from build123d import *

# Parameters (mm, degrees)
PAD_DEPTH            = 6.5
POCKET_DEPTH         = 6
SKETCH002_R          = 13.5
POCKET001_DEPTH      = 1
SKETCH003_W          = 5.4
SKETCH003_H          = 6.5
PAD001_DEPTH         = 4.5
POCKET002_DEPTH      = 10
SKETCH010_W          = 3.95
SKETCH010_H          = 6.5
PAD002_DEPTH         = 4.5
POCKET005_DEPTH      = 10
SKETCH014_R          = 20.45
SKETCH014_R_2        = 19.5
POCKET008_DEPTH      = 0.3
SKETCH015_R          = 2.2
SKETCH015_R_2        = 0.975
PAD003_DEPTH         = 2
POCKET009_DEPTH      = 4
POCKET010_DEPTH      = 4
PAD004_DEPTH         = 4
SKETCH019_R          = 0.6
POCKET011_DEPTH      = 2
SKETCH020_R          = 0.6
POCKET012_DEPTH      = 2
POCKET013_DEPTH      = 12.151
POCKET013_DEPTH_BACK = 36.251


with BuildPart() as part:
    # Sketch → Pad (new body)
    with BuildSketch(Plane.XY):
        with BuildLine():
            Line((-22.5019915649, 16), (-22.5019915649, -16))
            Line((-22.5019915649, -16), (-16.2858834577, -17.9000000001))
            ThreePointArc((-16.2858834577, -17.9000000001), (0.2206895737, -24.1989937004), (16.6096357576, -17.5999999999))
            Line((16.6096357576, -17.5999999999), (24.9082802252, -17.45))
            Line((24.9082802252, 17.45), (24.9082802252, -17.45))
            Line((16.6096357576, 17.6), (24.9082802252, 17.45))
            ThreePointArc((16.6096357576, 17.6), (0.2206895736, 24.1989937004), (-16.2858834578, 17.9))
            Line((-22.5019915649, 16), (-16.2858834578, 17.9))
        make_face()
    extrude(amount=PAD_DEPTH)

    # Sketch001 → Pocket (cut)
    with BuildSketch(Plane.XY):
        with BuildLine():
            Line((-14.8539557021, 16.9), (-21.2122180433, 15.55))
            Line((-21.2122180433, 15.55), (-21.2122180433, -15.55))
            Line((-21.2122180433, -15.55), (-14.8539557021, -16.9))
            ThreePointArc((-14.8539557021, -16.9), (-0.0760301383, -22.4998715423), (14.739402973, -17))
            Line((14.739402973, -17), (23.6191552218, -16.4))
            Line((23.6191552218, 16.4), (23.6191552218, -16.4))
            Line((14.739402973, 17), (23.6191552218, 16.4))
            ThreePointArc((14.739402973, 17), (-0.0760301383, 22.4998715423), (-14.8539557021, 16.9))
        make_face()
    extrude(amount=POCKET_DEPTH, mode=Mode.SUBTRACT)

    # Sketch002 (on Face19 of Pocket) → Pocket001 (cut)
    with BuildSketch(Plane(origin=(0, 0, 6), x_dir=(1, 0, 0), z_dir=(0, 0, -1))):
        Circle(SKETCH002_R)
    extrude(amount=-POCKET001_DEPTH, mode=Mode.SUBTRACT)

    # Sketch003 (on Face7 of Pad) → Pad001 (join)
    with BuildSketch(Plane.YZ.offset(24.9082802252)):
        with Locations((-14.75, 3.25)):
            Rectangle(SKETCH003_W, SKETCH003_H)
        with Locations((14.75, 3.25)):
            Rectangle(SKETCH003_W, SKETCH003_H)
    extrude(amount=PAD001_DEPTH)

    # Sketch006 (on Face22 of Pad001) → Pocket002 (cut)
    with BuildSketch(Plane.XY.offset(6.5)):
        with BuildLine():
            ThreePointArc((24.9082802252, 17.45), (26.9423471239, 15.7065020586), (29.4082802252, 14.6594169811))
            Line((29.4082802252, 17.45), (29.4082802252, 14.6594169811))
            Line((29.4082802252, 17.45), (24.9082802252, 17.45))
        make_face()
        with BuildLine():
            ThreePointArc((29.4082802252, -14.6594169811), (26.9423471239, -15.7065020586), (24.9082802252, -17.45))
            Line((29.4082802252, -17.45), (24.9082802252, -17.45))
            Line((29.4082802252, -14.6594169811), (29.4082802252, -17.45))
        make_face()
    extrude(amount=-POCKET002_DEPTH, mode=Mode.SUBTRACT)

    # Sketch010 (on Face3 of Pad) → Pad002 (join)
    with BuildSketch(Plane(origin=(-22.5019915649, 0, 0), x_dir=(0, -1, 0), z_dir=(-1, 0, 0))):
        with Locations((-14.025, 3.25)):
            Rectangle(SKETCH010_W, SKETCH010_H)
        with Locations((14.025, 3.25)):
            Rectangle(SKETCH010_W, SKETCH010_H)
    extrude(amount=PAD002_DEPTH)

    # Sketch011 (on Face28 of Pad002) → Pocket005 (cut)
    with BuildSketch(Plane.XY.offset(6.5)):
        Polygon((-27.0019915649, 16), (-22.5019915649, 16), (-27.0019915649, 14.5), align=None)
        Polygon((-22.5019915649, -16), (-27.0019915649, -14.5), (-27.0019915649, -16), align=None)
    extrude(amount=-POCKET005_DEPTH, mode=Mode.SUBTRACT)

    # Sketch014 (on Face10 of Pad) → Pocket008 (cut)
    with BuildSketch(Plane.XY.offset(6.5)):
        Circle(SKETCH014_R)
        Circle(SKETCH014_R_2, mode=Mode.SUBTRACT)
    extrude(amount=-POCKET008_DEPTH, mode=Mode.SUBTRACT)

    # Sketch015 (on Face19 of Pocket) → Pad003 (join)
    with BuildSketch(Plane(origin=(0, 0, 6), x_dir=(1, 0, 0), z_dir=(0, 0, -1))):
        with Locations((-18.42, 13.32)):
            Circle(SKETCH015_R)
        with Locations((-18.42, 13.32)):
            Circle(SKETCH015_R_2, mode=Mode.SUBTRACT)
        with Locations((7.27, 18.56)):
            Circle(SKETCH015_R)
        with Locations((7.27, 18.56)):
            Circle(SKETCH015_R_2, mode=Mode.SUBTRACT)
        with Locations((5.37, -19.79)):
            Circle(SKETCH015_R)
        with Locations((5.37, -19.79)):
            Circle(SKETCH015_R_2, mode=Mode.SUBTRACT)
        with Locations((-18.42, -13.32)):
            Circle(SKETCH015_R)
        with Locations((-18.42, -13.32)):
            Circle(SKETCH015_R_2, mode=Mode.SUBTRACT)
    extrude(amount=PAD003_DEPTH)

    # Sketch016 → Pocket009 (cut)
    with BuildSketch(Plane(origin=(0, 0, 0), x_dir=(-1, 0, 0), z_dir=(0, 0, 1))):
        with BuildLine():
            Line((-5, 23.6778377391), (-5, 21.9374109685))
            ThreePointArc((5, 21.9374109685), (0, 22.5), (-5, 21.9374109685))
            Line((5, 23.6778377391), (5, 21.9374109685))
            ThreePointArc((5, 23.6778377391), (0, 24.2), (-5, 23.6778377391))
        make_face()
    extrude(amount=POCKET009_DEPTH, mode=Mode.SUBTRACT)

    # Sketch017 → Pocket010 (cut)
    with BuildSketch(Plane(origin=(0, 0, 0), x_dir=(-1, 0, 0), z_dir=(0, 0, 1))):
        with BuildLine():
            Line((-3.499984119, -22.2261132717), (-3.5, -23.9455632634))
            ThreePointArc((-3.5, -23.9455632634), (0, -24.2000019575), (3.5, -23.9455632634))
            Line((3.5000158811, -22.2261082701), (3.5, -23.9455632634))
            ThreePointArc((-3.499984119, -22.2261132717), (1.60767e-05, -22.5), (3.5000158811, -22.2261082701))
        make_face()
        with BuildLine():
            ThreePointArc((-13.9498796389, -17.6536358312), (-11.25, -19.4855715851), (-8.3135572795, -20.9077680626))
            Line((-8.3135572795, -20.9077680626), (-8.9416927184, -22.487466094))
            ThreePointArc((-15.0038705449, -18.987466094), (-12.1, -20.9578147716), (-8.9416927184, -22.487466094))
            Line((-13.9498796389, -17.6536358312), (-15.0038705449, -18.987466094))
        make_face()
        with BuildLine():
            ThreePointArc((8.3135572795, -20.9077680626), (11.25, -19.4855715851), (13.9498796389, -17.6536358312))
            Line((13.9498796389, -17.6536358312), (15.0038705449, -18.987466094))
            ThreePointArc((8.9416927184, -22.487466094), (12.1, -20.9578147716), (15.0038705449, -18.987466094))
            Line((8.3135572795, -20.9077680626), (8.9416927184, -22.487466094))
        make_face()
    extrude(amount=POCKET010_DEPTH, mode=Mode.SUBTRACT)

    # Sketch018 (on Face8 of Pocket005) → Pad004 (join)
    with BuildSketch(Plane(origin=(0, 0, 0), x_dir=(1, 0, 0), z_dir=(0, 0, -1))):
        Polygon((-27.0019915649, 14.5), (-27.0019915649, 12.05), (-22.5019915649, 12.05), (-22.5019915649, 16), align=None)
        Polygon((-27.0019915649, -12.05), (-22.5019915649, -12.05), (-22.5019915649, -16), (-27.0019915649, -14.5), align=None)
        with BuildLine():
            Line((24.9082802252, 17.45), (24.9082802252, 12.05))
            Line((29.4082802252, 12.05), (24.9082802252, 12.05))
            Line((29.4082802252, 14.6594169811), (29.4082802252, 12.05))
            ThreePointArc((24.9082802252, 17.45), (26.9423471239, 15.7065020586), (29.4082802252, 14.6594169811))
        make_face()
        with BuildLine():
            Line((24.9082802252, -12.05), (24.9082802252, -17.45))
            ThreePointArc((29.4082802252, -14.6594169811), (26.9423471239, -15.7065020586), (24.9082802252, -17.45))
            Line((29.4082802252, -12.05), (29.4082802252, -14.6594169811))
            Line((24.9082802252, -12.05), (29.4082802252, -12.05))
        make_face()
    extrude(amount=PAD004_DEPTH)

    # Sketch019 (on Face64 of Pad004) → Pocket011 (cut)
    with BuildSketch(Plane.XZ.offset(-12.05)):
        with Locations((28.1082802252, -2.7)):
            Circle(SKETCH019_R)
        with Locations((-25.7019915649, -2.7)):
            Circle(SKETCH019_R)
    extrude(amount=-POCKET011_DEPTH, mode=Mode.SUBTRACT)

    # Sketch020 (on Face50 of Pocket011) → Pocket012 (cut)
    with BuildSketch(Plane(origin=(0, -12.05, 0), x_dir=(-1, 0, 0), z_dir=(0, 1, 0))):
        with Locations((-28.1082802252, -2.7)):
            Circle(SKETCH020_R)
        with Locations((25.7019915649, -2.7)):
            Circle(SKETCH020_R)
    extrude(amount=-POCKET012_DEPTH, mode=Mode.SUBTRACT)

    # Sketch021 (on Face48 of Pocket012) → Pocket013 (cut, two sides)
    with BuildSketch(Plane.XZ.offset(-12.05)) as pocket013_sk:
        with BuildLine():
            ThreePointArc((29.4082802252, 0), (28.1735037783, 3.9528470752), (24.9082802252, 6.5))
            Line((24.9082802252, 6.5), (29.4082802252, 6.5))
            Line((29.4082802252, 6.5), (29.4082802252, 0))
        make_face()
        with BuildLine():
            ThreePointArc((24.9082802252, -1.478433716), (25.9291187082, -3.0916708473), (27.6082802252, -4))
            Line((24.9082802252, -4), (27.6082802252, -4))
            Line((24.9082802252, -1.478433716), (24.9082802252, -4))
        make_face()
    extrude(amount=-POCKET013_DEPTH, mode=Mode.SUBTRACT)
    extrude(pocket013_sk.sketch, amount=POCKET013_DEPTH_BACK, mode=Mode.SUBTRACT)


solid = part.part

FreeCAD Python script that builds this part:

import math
import FreeCAD as App
import Part
import Sketcher
from FreeCAD import Vector

doc = App.newDocument("Part")
body = doc.addObject("PartDesign::Body", "Body")

sketch1 = body.newObject("Sketcher::SketchObject", "Sketch")
sketch1.AttachmentSupport = (doc.getObject("XY_Plane"), [""])
sketch1.MapMode = "FlatFace"
sketch1.addGeometry(Part.LineSegment(Vector(-22.501992, 16, 0), Vector(-22.501992, -16, 0)), False)
sketch1.addGeometry(Part.LineSegment(Vector(-22.501992, -16, 0), Vector(-16.285883, -17.9, 0)), False)
sketch1.addGeometry(Part.ArcOfCircle(Part.Circle(Vector(0, 0, 0), Vector(0, 0, 1), 24.2), math.radians(-132.296737), math.radians(-46.658242)), False)
sketch1.addGeometry(Part.LineSegment(Vector(16.609636, -17.6, 0), Vector(24.90828, -17.45, 0)), False)
sketch1.addGeometry(Part.LineSegment(Vector(24.90828, -17.45, 0), Vector(24.90828, 17.45, 0)), False)
sketch1.addGeometry(Part.LineSegment(Vector(24.90828, 17.45, 0), Vector(16.609636, 17.6, 0)), False)
sketch1.addGeometry(Part.ArcOfCircle(Part.Circle(Vector(0, 0, 0), Vector(0, 0, 1), 24.2), math.radians(46.658242), math.radians(132.296737)), False)
sketch1.addGeometry(Part.LineSegment(Vector(-16.285883, 17.9, 0), Vector(-22.501992, 16, 0)), False)
sketch1.addConstraint(Sketcher.Constraint("Coincident", 0, 2, 1, 1))
sketch1.addConstraint(Sketcher.Constraint("Coincident", 1, 2, 2, 1))
sketch1.addConstraint(Sketcher.Constraint("Coincident", 2, 2, 3, 1))
sketch1.addConstraint(Sketcher.Constraint("Coincident", 3, 2, 4, 1))
sketch1.addConstraint(Sketcher.Constraint("Coincident", 4, 2, 5, 1))
sketch1.addConstraint(Sketcher.Constraint("Coincident", 5, 2, 6, 1))
sketch1.addConstraint(Sketcher.Constraint("Coincident", 6, 2, 7, 1))
sketch1.addConstraint(Sketcher.Constraint("Coincident", 7, 2, 0, 1))
sketch1.addConstraint(Sketcher.Constraint("Vertical", 0))
sketch1.addConstraint(Sketcher.Constraint("Vertical", 4))
sketch1.addConstraint(Sketcher.Constraint("Coincident", 2, 3, -1, 1))
sketch1.addConstraint(Sketcher.Constraint("Coincident", 6, 3, -1, 1))
sketch1.addConstraint(Sketcher.Constraint("Equal", 2, 6))
sketch1.addConstraint(Sketcher.Constraint("Vertical", 2, 2, 5, 2))
sketch1.addConstraint(Sketcher.Constraint("Vertical", 1, 2, 6, 2))
sketch1.addConstraint(Sketcher.Constraint("Equal", 3, 5))
sketch1.addConstraint(Sketcher.Constraint("Equal", 1, 7))
sketch1.addConstraint(Sketcher.Constraint("Radius", 2, 24.2))
sketch1.addConstraint(Sketcher.Constraint("DistanceY", 0, 2, 0, 1, 32.0))
sketch1.addConstraint(Sketcher.Constraint("DistanceY", 4, 1, 4, 2, 34.9))
sketch1.addConstraint(Sketcher.Constraint("Distance", 1, 6.5))
sketch1.addConstraint(Sketcher.Constraint("Distance", 3, 8.3))
sketch1.addConstraint(Sketcher.Constraint("DistanceY", 1, 2, -1, 1, 17.9))
sketch1.addConstraint(Sketcher.Constraint("DistanceY", 2, 2, -1, 1, 17.6))
pad1 = body.newObject("PartDesign::Pad", "Pad")
pad1.Profile = sketch1
pad1.Length = 6.5

sketch2 = body.newObject("Sketcher::SketchObject", "Sketch001")
sketch2.AttachmentSupport = (doc.getObject("XY_Plane"), [""])
sketch2.MapMode = "FlatFace"
sketch2.addGeometry(Part.LineSegment(Vector(-14.853956, 16.9, 0), Vector(-21.212218, 15.55, 0)), False)
sketch2.addGeometry(Part.LineSegment(Vector(-21.212218, 15.55, 0), Vector(-21.212218, -15.55, 0)), False)
sketch2.addGeometry(Part.LineSegment(Vector(-21.212218, -15.55, 0), Vector(-14.853956, -16.9, 0)), False)
sketch2.addGeometry(Part.ArcOfCircle(Part.Circle(Vector(0, 0, 0), Vector(0, 0, 1), 22.5), math.radians(-131.313282), math.radians(-49.073937)), False)
sketch2.addGeometry(Part.LineSegment(Vector(14.739403, -17, 0), Vector(23.619155, -16.4, 0)), False)
sketch2.addGeometry(Part.LineSegment(Vector(23.619155, -16.4, 0), Vector(23.619155, 16.4, 0)), False)
sketch2.addGeometry(Part.LineSegment(Vector(23.619155, 16.4, 0), Vector(14.739403, 17, 0)), False)
sketch2.addGeometry(Part.ArcOfCircle(Part.Circle(Vector(0, 0, 0), Vector(0, 0, 1), 22.5), math.radians(49.073937), math.radians(131.313282)), False)
sketch2.addConstraint(Sketcher.Constraint("Coincident", 0, 2, 1, 1))
sketch2.addConstraint(Sketcher.Constraint("Coincident", 1, 2, 2, 1))
sketch2.addConstraint(Sketcher.Constraint("Coincident", 2, 2, 3, 1))
sketch2.addConstraint(Sketcher.Constraint("Coincident", 3, 2, 4, 1))
sketch2.addConstraint(Sketcher.Constraint("Coincident", 4, 2, 5, 1))
sketch2.addConstraint(Sketcher.Constraint("Coincident", 5, 2, 6, 1))
sketch2.addConstraint(Sketcher.Constraint("Coincident", 6, 2, 7, 1))
sketch2.addConstraint(Sketcher.Constraint("Coincident", 7, 2, 0, 1))
sketch2.addConstraint(Sketcher.Constraint("Vertical", 1))
sketch2.addConstraint(Sketcher.Constraint("Vertical", 5))
sketch2.addConstraint(Sketcher.Constraint("Coincident", 3, 3, -1, 1))
sketch2.addConstraint(Sketcher.Constraint("Coincident", 7, 3, -1, 1))
sketch2.addConstraint(Sketcher.Constraint("Equal", 3, 7))
sketch2.addConstraint(Sketcher.Constraint("Vertical", 3, 2, 6, 2))
sketch2.addConstraint(Sketcher.Constraint("Vertical", 2, 2, 7, 2))
sketch2.addConstraint(Sketcher.Constraint("Equal", 0, 2))
sketch2.addConstraint(Sketcher.Constraint("Equal", 4, 6))
sketch2.addConstraint(Sketcher.Constraint("Radius", 3, 22.5))
sketch2.addConstraint(Sketcher.Constraint("DistanceY", 1, 2, 1, 1, 31.1))
sketch2.addConstraint(Sketcher.Constraint("DistanceY", 5, 1, 5, 2, 32.8))
sketch2.addConstraint(Sketcher.Constraint("DistanceY", 3, 2, -1, 1, 17.0))
sketch2.addConstraint(Sketcher.Constraint("Distance", 0, 6.5))
sketch2.addConstraint(Sketcher.Constraint("Distance", 4, 8.9))
sketch2.addConstraint(Sketcher.Constraint("DistanceY", 2, 2, -1, 1, 16.9))
pocket1 = body.newObject("PartDesign::Pocket", "Pocket")
pocket1.Profile = sketch2
pocket1.Length = 6
pocket1.Reversed = True

sketch3 = body.newObject("Sketcher::SketchObject", "Sketch002")
sketch3.AttachmentSupport = (doc.getObject("XY_Plane"), [""])
sketch3.MapMode = "FlatFace"
sketch3.AttachmentOffset = App.Placement(Vector(0, 0, 6), App.Rotation())
sketch3.addGeometry(Part.Circle(Vector(0, 0, 0), Vector(0, 0, 1), 13.5), False)
sketch3.addConstraint(Sketcher.Constraint("Coincident", 0, 3, -1, 1))
sketch3.addConstraint(Sketcher.Constraint("Diameter", 0, 27.0))
pocket2 = body.newObject("PartDesign::Pocket", "Pocket001")
pocket2.Profile = sketch3
pocket2.Length = 1
pocket2.Reversed = True

sketch4 = body.newObject("Sketcher::SketchObject", "Sketch003")
sketch4.AttachmentSupport = (doc.getObject("YZ_Plane"), [""])
sketch4.MapMode = "FlatFace"
sketch4.AttachmentOffset = App.Placement(Vector(0, 0, 24.90828), App.Rotation())
sketch4.addGeometry(Part.LineSegment(Vector(-17.45, 6.5, 0), Vector(-17.45, 0, 0)), False)
sketch4.addGeometry(Part.LineSegment(Vector(-17.45, 0, 0), Vector(-12.05, 0, 0)), False)
sketch4.addGeometry(Part.LineSegment(Vector(-12.05, 0, 0), Vector(-12.05, 6.5, 0)), False)
sketch4.addGeometry(Part.LineSegment(Vector(-12.05, 6.5, 0), Vector(-17.45, 6.5, 0)), False)
sketch4.addGeometry(Part.LineSegment(Vector(12.05, 6.5, 0), Vector(12.05, 0, 0)), False)
sketch4.addGeometry(Part.LineSegment(Vector(12.05, 0, 0), Vector(17.45, 0, 0)), False)
sketch4.addGeometry(Part.LineSegment(Vector(17.45, 0, 0), Vector(17.45, 6.5, 0)), False)
sketch4.addGeometry(Part.LineSegment(Vector(17.45, 6.5, 0), Vector(12.05, 6.5, 0)), False)
sketch4.addConstraint(Sketcher.Constraint("Coincident", 0, 2, 1, 1))
sketch4.addConstraint(Sketcher.Constraint("Coincident", 1, 2, 2, 1))
sketch4.addConstraint(Sketcher.Constraint("Coincident", 2, 2, 3, 1))
sketch4.addConstraint(Sketcher.Constraint("Coincident", 3, 2, 0, 1))
sketch4.addConstraint(Sketcher.Constraint("Coincident", 4, 2, 5, 1))
sketch4.addConstraint(Sketcher.Constraint("Coincident", 5, 2, 6, 1))
sketch4.addConstraint(Sketcher.Constraint("Coincident", 6, 2, 7, 1))
sketch4.addConstraint(Sketcher.Constraint("Coincident", 7, 2, 4, 1))
sketch4.addConstraint(Sketcher.Constraint("Vertical", 0))
sketch4.addConstraint(Sketcher.Constraint("Horizontal", 1))
sketch4.addConstraint(Sketcher.Constraint("Vertical", 2))
sketch4.addConstraint(Sketcher.Constraint("Horizontal", 3))
sketch4.addConstraint(Sketcher.Constraint("Vertical", 4))
sketch4.addConstraint(Sketcher.Constraint("Horizontal", 5))
sketch4.addConstraint(Sketcher.Constraint("Vertical", 6))
sketch4.addConstraint(Sketcher.Constraint("Horizontal", 7))
sketch4.addConstraint(Sketcher.Constraint("Symmetric", 1, 2, 4, 2, -1, 1))
sketch4.addConstraint(Sketcher.Constraint("Symmetric", 0, 2, 5, 2, -2))
sketch4.addConstraint(Sketcher.Constraint("Horizontal", 3, 2, 6, 2))
sketch4.addConstraint(Sketcher.Constraint("DistanceX", 1, 1, 1, 2, 5.4))
sketch4.addConstraint(Sketcher.Constraint("DistanceY", 0, 2, 0, 1, 6.5))
sketch4.addConstraint(Sketcher.Constraint("DistanceX", 1, 2, 4, 2, 24.1))
pad2 = body.newObject("PartDesign::Pad", "Pad001")
pad2.Profile = sketch4
pad2.Length = 4.5

sketch5 = body.newObject("Sketcher::SketchObject", "Sketch004")
sketch5.AttachmentSupport = (doc.getObject("XY_Plane"), [""])
sketch5.MapMode = "FlatFace"
sketch5.AttachmentOffset = App.Placement(Vector(0, 0, 6.5), App.Rotation())
sketch5.addGeometry(Part.ArcOfCircle(Part.Circle(Vector(31.55828, 23.15, 0), Vector(0, 0, 1), 8.758567), math.radians(-139.398705), math.radians(-104.209844)), False)
sketch5.addGeometry(Part.LineSegment(Vector(29.40828, 14.659417, 0), Vector(29.40828, 17.45, 0)), False)
sketch5.addGeometry(Part.LineSegment(Vector(29.40828, 17.45, 0), Vector(24.90828, 17.45, 0)), False)
sketch5.addGeometry(Part.ArcOfCircle(Part.Circle(Vector(31.55828, -23.15, 0), Vector(0, 0, 1), 8.758567), math.radians(104.209844), math.radians(139.398705)), False)
sketch5.addGeometry(Part.LineSegment(Vector(24.90828, -17.45, 0), Vector(29.40828, -17.45, 0)), False)
sketch5.addGeometry(Part.LineSegment(Vector(29.40828, -17.45, 0), Vector(29.40828, -14.659417, 0)), False)
sketch5.addConstraint(Sketcher.Constraint("Coincident", 0, 2, 1, 1))
sketch5.addConstraint(Sketcher.Constraint("Coincident", 1, 2, 2, 1))
sketch5.addConstraint(Sketcher.Constraint("Coincident", 2, 2, 0, 1))
sketch5.addConstraint(Sketcher.Constraint("Coincident", 3, 2, 4, 1))
sketch5.addConstraint(Sketcher.Constraint("Coincident", 4, 2, 5, 1))
sketch5.addConstraint(Sketcher.Constraint("Coincident", 5, 2, 3, 1))
sketch5.addConstraint(Sketcher.Constraint("Vertical", 1))
sketch5.addConstraint(Sketcher.Constraint("Horizontal", 2))
sketch5.addConstraint(Sketcher.Constraint("Horizontal", 4))
sketch5.addConstraint(Sketcher.Constraint("Vertical", 5))
sketch5.addConstraint(Sketcher.Constraint("Equal", 0, 3))
sketch5.addConstraint(Sketcher.Constraint("Symmetric", 0, 3, 3, 3, -1))
sketch5.addConstraint(Sketcher.Constraint("Symmetric", 1, 2, 4, 2, -1))
sketch5.addConstraint(Sketcher.Constraint("DistanceX", 2, 2, 2, 1, 4.5))
sketch5.addConstraint(Sketcher.Constraint("DistanceY", 3, 3, 0, 3, 46.3))
sketch5.addConstraint(Sketcher.Constraint("DistanceY", 1, 2, 0, 3, 5.7))
sketch5.addConstraint(Sketcher.Constraint("DistanceX", 0, 2, 0, 3, 2.15))
sketch5.addConstraint(Sketcher.Constraint("DistanceX", -1, 1, 0, 3, 31.55828))
pocket3 = body.newObject("PartDesign::Pocket", "Pocket002")
pocket3.Profile = sketch5
pocket3.Length = 10

sketch6 = body.newObject("Sketcher::SketchObject", "Sketch005")
sketch6.AttachmentSupport = (doc.getObject("YZ_Plane"), [""])
sketch6.MapMode = "FlatFace"
sketch6.AttachmentOffset = App.Placement(Vector(0, 0, -22.501992), App.Rotation())
sketch6.addGeometry(Part.LineSegment(Vector(16, 6.5, 0), Vector(16, 0, 0)), False)
sketch6.addGeometry(Part.LineSegment(Vector(16, 0, 0), Vector(12.05, 0, 0)), False)
sketch6.addGeometry(Part.LineSegment(Vector(12.05, 0, 0), Vector(12.05, 6.5, 0)), False)
sketch6.addGeometry(Part.LineSegment(Vector(12.05, 6.5, 0), Vector(16, 6.5, 0)), False)
sketch6.addGeometry(Part.LineSegment(Vector(-12.05, 6.5, 0), Vector(-12.05, 0, 0)), False)
sketch6.addGeometry(Part.LineSegment(Vector(-12.05, 0, 0), Vector(-16, 0, 0)), False)
sketch6.addGeometry(Part.LineSegment(Vector(-16, 0, 0), Vector(-16, 6.5, 0)), False)
sketch6.addGeometry(Part.LineSegment(Vector(-16, 6.5, 0), Vector(-12.05, 6.5, 0)), False)
sketch6.addConstraint(Sketcher.Constraint("Coincident", 0, 2, 1, 1))
sketch6.addConstraint(Sketcher.Constraint("Coincident", 1, 2, 2, 1))
sketch6.addConstraint(Sketcher.Constraint("Coincident", 2, 2, 3, 1))
sketch6.addConstraint(Sketcher.Constraint("Coincident", 3, 2, 0, 1))
sketch6.addConstraint(Sketcher.Constraint("Coincident", 4, 2, 5, 1))
sketch6.addConstraint(Sketcher.Constraint("Coincident", 5, 2, 6, 1))
sketch6.addConstraint(Sketcher.Constraint("Coincident", 6, 2, 7, 1))
sketch6.addConstraint(Sketcher.Constraint("Coincident", 7, 2, 4, 1))
sketch6.addConstraint(Sketcher.Constraint("Vertical", 0))
sketch6.addConstraint(Sketcher.Constraint("Horizontal", 1))
sketch6.addConstraint(Sketcher.Constraint("Vertical", 2))
sketch6.addConstraint(Sketcher.Constraint("Horizontal", 3))
sketch6.addConstraint(Sketcher.Constraint("Vertical", 4))
sketch6.addConstraint(Sketcher.Constraint("Horizontal", 5))
sketch6.addConstraint(Sketcher.Constraint("Vertical", 6))
sketch6.addConstraint(Sketcher.Constraint("Horizontal", 7))
sketch6.addConstraint(Sketcher.Constraint("Symmetric", 1, 2, 4, 2, -1, 1))
sketch6.addConstraint(Sketcher.Constraint("Symmetric", 0, 2, 5, 2, -2))
sketch6.addConstraint(Sketcher.Constraint("Horizontal", 3, 2, 6, 2))
sketch6.addConstraint(Sketcher.Constraint("DistanceY", 0, 2, 0, 1, 6.5))
sketch6.addConstraint(Sketcher.Constraint("DistanceX", -1, 1, 0, 2, 16.0))
sketch6.addConstraint(Sketcher.Constraint("DistanceX", 1, 2, 1, 1, 3.95))
pad3 = body.newObject("PartDesign::Pad", "Pad002")
pad3.Profile = sketch6
pad3.Length = 4.5
pad3.Reversed = True

sketch7 = body.newObject("Sketcher::SketchObject", "Sketch006")
sketch7.AttachmentSupport = (doc.getObject("XY_Plane"), [""])
sketch7.MapMode = "FlatFace"
sketch7.AttachmentOffset = App.Placement(Vector(0, 0, 6.5), App.Rotation())
sketch7.addGeometry(Part.LineSegment(Vector(-22.501992, 16, 0), Vector(-27.001992, 16, 0)), False)
sketch7.addGeometry(Part.LineSegment(Vector(-27.001992, 16, 0), Vector(-27.001992, 14.5, 0)), False)
sketch7.addGeometry(Part.LineSegment(Vector(-27.001992, 14.5, 0), Vector(-22.501992, 16, 0)), False)
sketch7.addGeometry(Part.LineSegment(Vector(-22.501992, -16, 0), Vector(-27.001992, -14.5, 0)), False)
sketch7.addGeometry(Part.LineSegment(Vector(-27.001992, -14.5, 0), Vector(-27.001992, -16, 0)), False)
sketch7.addGeometry(Part.LineSegment(Vector(-27.001992, -16, 0), Vector(-22.501992, -16, 0)), False)
sketch7.addConstraint(Sketcher.Constraint("Coincident", 0, 2, 1, 1))
sketch7.addConstraint(Sketcher.Constraint("Coincident", 1, 2, 2, 1))
sketch7.addConstraint(Sketcher.Constraint("Coincident", 2, 2, 0, 1))
sketch7.addConstraint(Sketcher.Constraint("Coincident", 3, 2, 4, 1))
sketch7.addConstraint(Sketcher.Constraint("Coincident", 4, 2, 5, 1))
sketch7.addConstraint(Sketcher.Constraint("Coincident", 5, 2, 3, 1))
sketch7.addConstraint(Sketcher.Constraint("Horizontal", 0))
sketch7.addConstraint(Sketcher.Constraint("Vertical", 1))
sketch7.addConstraint(Sketcher.Constraint("Vertical", 4))
sketch7.addConstraint(Sketcher.Constraint("Horizontal", 5))
sketch7.addConstraint(Sketcher.Constraint("Symmetric", 1, 2, 3, 2, -1))
sketch7.addConstraint(Sketcher.Constraint("Symmetric", 2, 2, 5, 2, -1))
sketch7.addConstraint(Sketcher.Constraint("DistanceX", 0, 2, 0, 1, 4.5))
sketch7.addConstraint(Sketcher.Constraint("DistanceY", 1, 2, 1, 1, 1.5))
sketch7.addConstraint(Sketcher.Constraint("DistanceY", -1, 1, 0, 2, 16.0))
sketch7.addConstraint(Sketcher.Constraint("DistanceX", 0, 2, -1, 1, 27.001992))
pocket4 = body.newObject("PartDesign::Pocket", "Pocket003")
pocket4.Profile = sketch7
pocket4.Length = 10

sketch8 = body.newObject("Sketcher::SketchObject", "Sketch007")
sketch8.AttachmentSupport = (doc.getObject("XY_Plane"), [""])
sketch8.MapMode = "FlatFace"
sketch8.AttachmentOffset = App.Placement(Vector(0, 0, 6.5), App.Rotation())
sketch8.addGeometry(Part.Circle(Vector(0, 0, 0), Vector(0, 0, 1), 20.45), False)
sketch8.addGeometry(Part.Circle(Vector(0, 0, 0), Vector(0, 0, 1), 19.5), False)
sketch8.addConstraint(Sketcher.Constraint("Coincident", 0, 3, -1, 1))
sketch8.addConstraint(Sketcher.Constraint("Coincident", 1, 3, -1, 1))
sketch8.addConstraint(Sketcher.Constraint("Diameter", 1, 39.0))
sketch8.addConstraint(Sketcher.Constraint("Diameter", 0, 40.9))
pocket5 = body.newObject("PartDesign::Pocket", "Pocket004")
pocket5.Profile = sketch8
pocket5.Length = 0.3

sketch9 = body.newObject("Sketcher::SketchObject", "Sketch008")
sketch9.AttachmentSupport = (doc.getObject("XY_Plane"), [""])
sketch9.MapMode = "FlatFace"
sketch9.AttachmentOffset = App.Placement(Vector(0, 0, 6), App.Rotation())
sketch9.addGeometry(Part.Circle(Vector(-18.42, -13.32, 0), Vector(0, 0, 1), 2.2), False)
sketch9.addGeometry(Part.Circle(Vector(-18.42, -13.32, 0), Vector(0, 0, 1), 0.975), False)
sketch9.addGeometry(Part.Circle(Vector(7.27, -18.56, 0), Vector(0, 0, 1), 2.2), False)
sketch9.addGeometry(Part.Circle(Vector(7.27, -18.56, 0), Vector(0, 0, 1), 0.975), False)
sketch9.addGeometry(Part.Circle(Vector(5.37, 19.79, 0), Vector(0, 0, 1), 2.2), False)
sketch9.addGeometry(Part.Circle(Vector(5.37, 19.79, 0), Vector(0, 0, 1), 0.975), False)
sketch9.addGeometry(Part.Circle(Vector(-18.42, 13.32, 0), Vector(0, 0, 1), 2.2), False)
sketch9.addGeometry(Part.Circle(Vector(-18.42, 13.32, 0), Vector(0, 0, 1), 0.975), False)
sketch9.addConstraint(Sketcher.Constraint("Coincident", 1, 3, 0, 3))
sketch9.addConstraint(Sketcher.Constraint("Coincident", 3, 3, 2, 3))
sketch9.addConstraint(Sketcher.Constraint("Coincident", 5, 3, 4, 3))
sketch9.addConstraint(Sketcher.Constraint("Coincident", 7, 3, 6, 3))
sketch9.addConstraint(Sketcher.Constraint("Equal", 0, 2))
sketch9.addConstraint(Sketcher.Constraint("Equal", 1, 3))
sketch9.addConstraint(Sketcher.Constraint("Equal", 2, 4))
sketch9.addConstraint(Sketcher.Constraint("Equal", 3, 5))
sketch9.addConstraint(Sketcher.Constraint("Equal", 4, 6))
sketch9.addConstraint(Sketcher.Constraint("Equal", 5, 7))
sketch9.addConstraint(Sketcher.Constraint("Symmetric", 0, 3, 6, 3, -1))
sketch9.addConstraint(Sketcher.Constraint("Diameter", 0, 4.4))
sketch9.addConstraint(Sketcher.Constraint("Diameter", 1, 1.95))
sketch9.addConstraint(Sketcher.Constraint("DistanceX", 4, 3, 2, 3, 1.9))
sketch9.addConstraint(Sketcher.Constraint("DistanceX", 0, 3, -1, 1, 18.42))
sketch9.addConstraint(Sketcher.Constraint("DistanceY", 0, 3, -1, 1, 13.32))
sketch9.addConstraint(Sketcher.Constraint("DistanceX", -1, 1, 2, 3, 7.27))
sketch9.addConstraint(Sketcher.Constraint("DistanceY", 2, 3, -1, 1, 18.56))
sketch9.addConstraint(Sketcher.Constraint("DistanceY", -1, 1, 4, 3, 19.79))
pad4 = body.newObject("PartDesign::Pad", "Pad003")
pad4.Profile = sketch9
pad4.Length = 2
pad4.Reversed = True

sketch10 = body.newObject("Sketcher::SketchObject", "Sketch009")
sketch10.AttachmentSupport = (doc.getObject("XY_Plane"), [""])
sketch10.MapMode = "FlatFace"
sketch10.addGeometry(Part.LineSegment(Vector(5, -23.677838, 0), Vector(5, -21.937411, 0)), False)
sketch10.addGeometry(Part.ArcOfCircle(Part.Circle(Vector(0, 0, 0), Vector(0, 0, 1), 22.5), math.radians(-102.839588), math.radians(-77.160412)), False)
sketch10.addGeometry(Part.LineSegment(Vector(-5, -21.937411, 0), Vector(-5, -23.677838, 0)), False)
sketch10.addGeometry(Part.ArcOfCircle(Part.Circle(Vector(0, 0, 0), Vector(0, 0, 1), 24.2), math.radians(-101.923855), math.radians(-78.076145)), False)
sketch10.addConstraint(Sketcher.Constraint("Coincident", 0, 2, 1, 2))
sketch10.addConstraint(Sketcher.Constraint("Coincident", 1, 1, 2, 1))
sketch10.addConstraint(Sketcher.Constraint("Coincident", 2, 2, 3, 1))
sketch10.addConstraint(Sketcher.Constraint("Coincident", 3, 2, 0, 1))
sketch10.addConstraint(Sketcher.Constraint("Vertical", 0))
sketch10.addConstraint(Sketcher.Constraint("Vertical", 2))
sketch10.addConstraint(Sketcher.Constraint("Coincident", 1, 3, -1, 1))
sketch10.addConstraint(Sketcher.Constraint("Coincident", 3, 3, -1, 1))
sketch10.addConstraint(Sketcher.Constraint("Horizontal", 0, 2, 1, 1))
sketch10.addConstraint(Sketcher.Constraint("Radius", 1, 22.5))
sketch10.addConstraint(Sketcher.Constraint("Radius", 3, 24.2))
sketch10.addConstraint(Sketcher.Constraint("DistanceX", -1, 1, 0, 2, 5.0))
pocket6 = body.newObject("PartDesign::Pocket", "Pocket005")
pocket6.Profile = sketch10
pocket6.Length = 4
pocket6.Reversed = True

sketch11 = body.newObject("Sketcher::SketchObject", "Sketch010")
sketch11.AttachmentSupport = (doc.getObject("XY_Plane"), [""])
sketch11.MapMode = "FlatFace"
sketch11.addGeometry(Part.LineSegment(Vector(3.499984, 22.226113, 0), Vector(3.5, 23.945563, 0)), False)
sketch11.addGeometry(Part.ArcOfCircle(Part.Circle(Vector(0, 0.000186, 0), Vector(0, 0, 1), 24.199816), math.radians(81.684192), math.radians(98.315808)), False)
sketch11.addGeometry(Part.LineSegment(Vector(-3.5, 23.945563, 0), Vector(-3.500016, 22.226108, 0)), False)
sketch11.addGeometry(Part.ArcOfCircle(Part.Circle(Vector(0, 0, 0), Vector(0, 0, 1), 22.5), math.radians(81.051023), math.radians(98.949059)), False)
sketch11.addGeometry(Part.ArcOfCircle(Part.Circle(Vector(0, 0, 0), Vector(0, 0, 1), 22.5), math.radians(51.684256), math.radians(68.315744)), False)
sketch11.addGeometry(Part.LineSegment(Vector(13.94988, 17.653636, 0), Vector(15.003871, 18.987466, 0)), False)
sketch11.addGeometry(Part.ArcOfCircle(Part.Circle(Vector(0, 0, 0), Vector(0, 0, 1), 24.2), math.radians(51.684256), math.radians(68.315744)), False)
sketch11.addGeometry(Part.LineSegment(Vector(8.941693, 22.487466, 0), Vector(8.313557, 20.907768, 0)), False)
sketch11.addGeometry(Part.ArcOfCircle(Part.Circle(Vector(0, 0, 0), Vector(0, 0, 1), 22.5), math.radians(111.684256), math.radians(128.315744)), False)
sketch11.addGeometry(Part.LineSegment(Vector(-8.313557, 20.907768, 0), Vector(-8.941693, 22.487466, 0)), False)
sketch11.addGeometry(Part.ArcOfCircle(Part.Circle(Vector(0, 0, 0), Vector(0, 0, 1), 24.2), math.radians(111.684256), math.radians(128.315744)), False)
sketch11.addGeometry(Part.LineSegment(Vector(-15.003871, 18.987466, 0), Vector(-13.94988, 17.653636, 0)), False)
sketch11.addConstraint(Sketcher.Constraint("Coincident", 0, 2, 1, 1))
sketch11.addConstraint(Sketcher.Constraint("Coincident", 1, 2, 2, 1))
sketch11.addConstraint(Sketcher.Constraint("Coincident", 2, 2, 3, 2))
sketch11.addConstraint(Sketcher.Constraint("Coincident", 3, 1, 0, 1))
sketch11.addConstraint(Sketcher.Constraint("Coincident", 4, 1, 5, 1))
sketch11.addConstraint(Sketcher.Constraint("Coincident", 5, 2, 6, 1))
sketch11.addConstraint(Sketcher.Constraint("Coincident", 6, 2, 7, 1))
sketch11.addConstraint(Sketcher.Constraint("Coincident", 7, 2, 4, 2))
sketch11.addConstraint(Sketcher.Constraint("Coincident", 8, 1, 9, 1))
sketch11.addConstraint(Sketcher.Constraint("Coincident", 9, 2, 10, 1))
sketch11.addConstraint(Sketcher.Constraint("Coincident", 10, 2, 11, 1))
sketch11.addConstraint(Sketcher.Constraint("Coincident", 11, 2, 8, 2))
sketch11.addConstraint(Sketcher.Constraint("Coincident", 3, 3, -1, 1))
sketch11.addConstraint(Sketcher.Constraint("Coincident", 4, 3, -1, 1))
sketch11.addConstraint(Sketcher.Constraint("Coincident", 6, 3, -1, 1))
sketch11.addConstraint(Sketcher.Constraint("Coincident", 8, 3, -1, 1))
sketch11.addConstraint(Sketcher.Constraint("Coincident", 10, 3, -1, 1))
sketch11.addConstraint(Sketcher.Constraint("Equal", 3, 4))
sketch11.addConstraint(Sketcher.Constraint("Equal", 4, 8))
sketch11.addConstraint(Sketcher.Constraint("Equal", 6, 10))
sketch11.addConstraint(Sketcher.Constraint("Symmetric", 0, 2, 1, 2, -2))
sketch11.addConstraint(Sketcher.Constraint("Parallel", 0, 2))
sketch11.addConstraint(Sketcher.Constraint("Horizontal", 7, 2, 8, 1))
sketch11.addConstraint(Sketcher.Constraint("Horizontal", 6, 2, 9, 2))
sketch11.addConstraint(Sketcher.Constraint("Horizontal", 5, 2, 10, 2))
sketch11.addConstraint(Sketcher.Constraint("Horizontal", 4, 1, 11, 2))
sketch11.addConstraint(Sketcher.Constraint("Radius", 3, 22.5))
sketch11.addConstraint(Sketcher.Constraint("Radius", 6, 24.2))
sketch11.addConstraint(Sketcher.Constraint("DistanceX", 1, 2, 0, 2, 7.0))
sketch11.addConstraint(Sketcher.Constraint("DistanceY", 5, 2, 6, 2, 3.5))
sketch11.addConstraint(Sketcher.Constraint("Radius", 1, 24.199816))
sketch11.addConstraint(Sketcher.Constraint("DistanceY", 7, 2, 6, 2, 1.579698))
sketch11.addConstraint(Sketcher.Constraint("Distance", 0, 1.71945))
sketch11.addConstraint(Sketcher.Constraint("DistanceY", -1, 1, 2, 2, 22.226108))
sketch11.addConstraint(Sketcher.Constraint("DistanceX", -1, 1, 4, 1, 13.94988))
sketch11.addConstraint(Sketcher.Constraint("DistanceX", -1, 1, 5, 2, 15.003871))
pocket7 = body.newObject("PartDesign::Pocket", "Pocket006")
pocket7.Profile = sketch11
pocket7.Length = 4
pocket7.Reversed = True

sketch12 = body.newObject("Sketcher::SketchObject", "Sketch011")
sketch12.AttachmentSupport = (doc.getObject("XY_Plane"), [""])
sketch12.MapMode = "FlatFace"
sketch12.addGeometry(Part.LineSegment(Vector(-27.001992, -14.5, 0), Vector(-27.001992, -12.05, 0)), False)
sketch12.addGeometry(Part.LineSegment(Vector(-27.001992, -12.05, 0), Vector(-22.501992, -12.05, 0)), False)
sketch12.addGeometry(Part.LineSegment(Vector(-22.501992, -12.05, 0), Vector(-22.501992, -16, 0)), False)
sketch12.addGeometry(Part.LineSegment(Vector(-22.501992, -16, 0), Vector(-27.001992, -14.5, 0)), False)
sketch12.addGeometry(Part.LineSegment(Vector(-22.501992, 12.05, 0), Vector(-27.001992, 12.05, 0)), False)
sketch12.addGeometry(Part.LineSegment(Vector(-27.001992, 12.05, 0), Vector(-27.001992, 14.5, 0)), False)
sketch12.addGeometry(Part.LineSegment(Vector(-27.001992, 14.5, 0), Vector(-22.501992, 16, 0)), False)
sketch12.addGeometry(Part.LineSegment(Vector(-22.501992, 16, 0), Vector(-22.501992, 12.05, 0)), False)
sketch12.addGeometry(Part.LineSegment(Vector(24.90828, -17.45, 0), Vector(24.90828, -12.05, 0)), False)
sketch12.addGeometry(Part.LineSegment(Vector(24.90828, -12.05, 0), Vector(29.40828, -12.05, 0)), False)
sketch12.addGeometry(Part.LineSegment(Vector(29.40828, -12.05, 0), Vector(29.40828, -14.659417, 0)), False)
sketch12.addGeometry(Part.ArcOfCircle(Part.Circle(Vector(31.55828, -23.15, 0), Vector(0, 0, 1), 8.758567), math.radians(104.209844), math.radians(139.398705)), False)
sketch12.addGeometry(Part.LineSegment(Vector(24.90828, 12.05, 0), Vector(24.90828, 17.45, 0)), False)
sketch12.addGeometry(Part.ArcOfCircle(Part.Circle(Vector(31.55828, 23.15, 0), Vector(0, 0, 1), 8.758567), math.radians(-139.398705), math.radians(-104.209844)), False)
sketch12.addGeometry(Part.LineSegment(Vector(29.40828, 14.659417, 0), Vector(29.40828, 12.05, 0)), False)
sketch12.addGeometry(Part.LineSegment(Vector(29.40828, 12.05, 0), Vector(24.90828, 12.05, 0)), False)
sketch12.addConstraint(Sketcher.Constraint("Coincident", 0, 2, 1, 1))
sketch12.addConstraint(Sketcher.Constraint("Coincident", 1, 2, 2, 1))
sketch12.addConstraint(Sketcher.Constraint("Coincident", 2, 2, 3, 1))
sketch12.addConstraint(Sketcher.Constraint("Coincident", 3, 2, 0, 1))
sketch12.addConstraint(Sketcher.Constraint("Coincident", 4, 2, 5, 1))
sketch12.addConstraint(Sketcher.Constraint("Coincident", 5, 2, 6, 1))
sketch12.addConstraint(Sketcher.Constraint("Coincident", 6, 2, 7, 1))
sketch12.addConstraint(Sketcher.Constraint("Coincident", 7, 2, 4, 1))
sketch12.addConstraint(Sketcher.Constraint("Coincident", 8, 2, 9, 1))
sketch12.addConstraint(Sketcher.Constraint("Coincident", 9, 2, 10, 1))
sketch12.addConstraint(Sketcher.Constraint("Coincident", 10, 2, 11, 1))
sketch12.addConstraint(Sketcher.Constraint("Coincident", 11, 2, 8, 1))
sketch12.addConstraint(Sketcher.Constraint("Coincident", 12, 2, 13, 1))
sketch12.addConstraint(Sketcher.Constraint("Coincident", 13, 2, 14, 1))
sketch12.addConstraint(Sketcher.Constraint("Coincident", 14, 2, 15, 1))
sketch12.addConstraint(Sketcher.Constraint("Coincident", 15, 2, 12, 1))
sketch12.addConstraint(Sketcher.Constraint("Vertical", 0))
sketch12.addConstraint(Sketcher.Constraint("Horizontal", 1))
sketch12.addConstraint(Sketcher.Constraint("Vertical", 2))
sketch12.addConstraint(Sketcher.Constraint("Horizontal", 4))
sketch12.addConstraint(Sketcher.Constraint("Vertical", 5))
sketch12.addConstraint(Sketcher.Constraint("Vertical", 7))
sketch12.addConstraint(Sketcher.Constraint("Vertical", 8))
sketch12.addConstraint(Sketcher.Constraint("Horizontal", 9))
sketch12.addConstraint(Sketcher.Constraint("Vertical", 10))
sketch12.addConstraint(Sketcher.Constraint("Vertical", 12))
sketch12.addConstraint(Sketcher.Constraint("Vertical", 14))
sketch12.addConstraint(Sketcher.Constraint("Horizontal", 15))
sketch12.addConstraint(Sketcher.Constraint("Equal", 11, 13))
sketch12.addConstraint(Sketcher.Constraint("Symmetric", 11, 3, 13, 3, -1))
sketch12.addConstraint(Sketcher.Constraint("Symmetric", 0, 2, 4, 2, -1))
sketch12.addConstraint(Sketcher.Constraint("Symmetric", 2, 2, 6, 2, -1))
sketch12.addConstraint(Sketcher.Constraint("Symmetric", 9, 2, 14, 2, -1))
sketch12.addConstraint(Sketcher.Constraint("Horizontal", 1, 2, 8, 2))
sketch12.addConstraint(Sketcher.Constraint("Vertical", 11, 2, 12, 2))
sketch12.addConstraint(Sketcher.Constraint("Equal", 4, 9))
sketch12.addConstraint(Sketcher.Constraint("Equal", 0, 5))
sketch12.addConstraint(Sketcher.Constraint("DistanceX", 1, 1, 1, 2, 4.5))
sketch12.addConstraint(Sketcher.Constraint("DistanceY", 8, 1, 8, 2, 5.4))
sketch12.addConstraint(Sketcher.Constraint("DistanceY", 2, 2, -1, 1, 16.0))
sketch12.addConstraint(Sketcher.Constraint("DistanceY", 3, 2, 5, 2, 29.0))
sketch12.addConstraint(Sketcher.Constraint("DistanceY", 0, 1, 0, 2, 2.45))
sketch12.addConstraint(Sketcher.Constraint("DistanceY", 11, 3, 13, 3, 46.3))
sketch12.addConstraint(Sketcher.Constraint("DistanceX", 8, 2, 11, 3, 6.65))
sketch12.addConstraint(Sketcher.Constraint("DistanceX", -1, 1, 11, 3, 31.55828))
sketch12.addConstraint(Sketcher.Constraint("DistanceX", 0, 2, -1, 1, 27.001992))
pad5 = body.newObject("PartDesign::Pad", "Pad004")
pad5.Profile = sketch12
pad5.Length = 4
pad5.Reversed = True

sketch13 = body.newObject("Sketcher::SketchObject", "Sketch012")
sketch13.AttachmentSupport = (doc.getObject("XZ_Plane"), [""])
sketch13.MapMode = "FlatFace"
sketch13.AttachmentOffset = App.Placement(Vector(0, 0, -12.05), App.Rotation())
sketch13.addGeometry(Part.Circle(Vector(28.10828, -2.7, 0), Vector(0, 0, 1), 0.6), False)
sketch13.addGeometry(Part.Circle(Vector(-25.701992, -2.7, 0), Vector(0, 0, 1), 0.6), False)
sketch13.addConstraint(Sketcher.Constraint("Equal", 0, 1))
sketch13.addConstraint(Sketcher.Constraint("Horizontal", 0, 3, 1, 3))
sketch13.addConstraint(Sketcher.Constraint("Diameter", 0, 1.2))
sketch13.addConstraint(Sketcher.Constraint("DistanceY", 0, 3, -1, 1, 2.7))
sketch13.addConstraint(Sketcher.Constraint("DistanceX", -1, 1, 0, 3, 28.10828))
sketch13.addConstraint(Sketcher.Constraint("DistanceX", 1, 3, -1, 1, 25.701992))
pocket8 = body.newObject("PartDesign::Pocket", "Pocket007")
pocket8.Profile = sketch13
pocket8.Length = 2

sketch14 = body.newObject("Sketcher::SketchObject", "Sketch013")
sketch14.AttachmentSupport = (doc.getObject("XZ_Plane"), [""])
sketch14.MapMode = "FlatFace"
sketch14.AttachmentOffset = App.Placement(Vector(0, 0, 12.05), App.Rotation())
sketch14.addGeometry(Part.Circle(Vector(28.10828, -2.7, 0), Vector(0, 0, 1), 0.6), False)
sketch14.addGeometry(Part.Circle(Vector(-25.701992, -2.7, 0), Vector(0, 0, 1), 0.6), False)
sketch14.addConstraint(Sketcher.Constraint("Equal", 0, 1))
sketch14.addConstraint(Sketcher.Constraint("Horizontal", 0, 3, 1, 3))
sketch14.addConstraint(Sketcher.Constraint("Diameter", 0, 1.2))
sketch14.addConstraint(Sketcher.Constraint("DistanceY", 0, 3, -1, 1, 2.7))
sketch14.addConstraint(Sketcher.Constraint("DistanceX", -1, 1, 0, 3, 28.10828))
sketch14.addConstraint(Sketcher.Constraint("DistanceX", 1, 3, -1, 1, 25.701992))
pocket9 = body.newObject("PartDesign::Pocket", "Pocket008")
pocket9.Profile = sketch14
pocket9.Length = 2
pocket9.Reversed = True

sketch15 = body.newObject("Sketcher::SketchObject", "Sketch014")
sketch15.AttachmentSupport = (doc.getObject("XZ_Plane"), [""])
sketch15.MapMode = "FlatFace"
sketch15.AttachmentOffset = App.Placement(Vector(0, 0, -12.05), App.Rotation())
sketch15.addGeometry(Part.ArcOfCircle(Part.Circle(Vector(22.463836, 0, 0), Vector(0, 0, 1), 6.944444), math.radians(0), math.radians(69.390307)), False)
sketch15.addGeometry(Part.LineSegment(Vector(29.40828, 0, 0), Vector(29.40828, 6.5, 0)), False)
sketch15.addGeometry(Part.LineSegment(Vector(29.40828, 6.5, 0), Vector(24.90828, 6.5, 0)), False)
sketch15.addGeometry(Part.ArcOfCircle(Part.Circle(Vector(28.50828, -0.33, 0), Vector(0, 0, 1), 3.778743), math.radians(-162.30683), math.radians(-103.778819)), False)
sketch15.addGeometry(Part.LineSegment(Vector(24.90828, -1.478434, 0), Vector(24.90828, -4, 0)), False)
sketch15.addGeometry(Part.LineSegment(Vector(24.90828, -4, 0), Vector(27.60828, -4, 0)), False)
sketch15.addConstraint(Sketcher.Constraint("Tangent", 0, 1, 1, 1))
sketch15.addConstraint(Sketcher.Constraint("Coincident", 1, 2, 2, 1))
sketch15.addConstraint(Sketcher.Constraint("Coincident", 2, 2, 0, 2))
sketch15.addConstraint(Sketcher.Constraint("Coincident", 3, 1, 4, 1))
sketch15.addConstraint(Sketcher.Constraint("Coincident", 4, 2, 5, 1))
sketch15.addConstraint(Sketcher.Constraint("Coincident", 5, 2, 3, 2))
sketch15.addConstraint(Sketcher.Constraint("Vertical", 1))
sketch15.addConstraint(Sketcher.Constraint("Horizontal", 2))
sketch15.addConstraint(Sketcher.Constraint("Vertical", 4))
sketch15.addConstraint(Sketcher.Constraint("Horizontal", 5))
sketch15.addConstraint(Sketcher.Constraint("PointOnObject", 0, 3, -1))
sketch15.addConstraint(Sketcher.Constraint("Vertical", 2, 2, 3, 1))
sketch15.addConstraint(Sketcher.Constraint("DistanceX", 2, 2, 2, 1, 4.5))
sketch15.addConstraint(Sketcher.Constraint("DistanceX", 5, 1, 5, 2, 2.7))
sketch15.addConstraint(Sketcher.Constraint("DistanceY", 1, 1, 1, 2, 6.5))
sketch15.addConstraint(Sketcher.Constraint("DistanceY", 4, 2, -1, 1, 4.0))
sketch15.addConstraint(Sketcher.Constraint("DistanceX", 3, 3, 0, 1, 0.9))
sketch15.addConstraint(Sketcher.Constraint("DistanceY", 3, 3, -1, 1, 0.33))
sketch15.addConstraint(Sketcher.Constraint("DistanceX", -1, 1, 3, 3, 28.50828))
pocket10 = body.newObject("PartDesign::Pocket", "Pocket009")
pocket10.Profile = sketch15
pocket10.Type = "ThroughAll"
pocket10.Midplane = True

doc.recompute()
